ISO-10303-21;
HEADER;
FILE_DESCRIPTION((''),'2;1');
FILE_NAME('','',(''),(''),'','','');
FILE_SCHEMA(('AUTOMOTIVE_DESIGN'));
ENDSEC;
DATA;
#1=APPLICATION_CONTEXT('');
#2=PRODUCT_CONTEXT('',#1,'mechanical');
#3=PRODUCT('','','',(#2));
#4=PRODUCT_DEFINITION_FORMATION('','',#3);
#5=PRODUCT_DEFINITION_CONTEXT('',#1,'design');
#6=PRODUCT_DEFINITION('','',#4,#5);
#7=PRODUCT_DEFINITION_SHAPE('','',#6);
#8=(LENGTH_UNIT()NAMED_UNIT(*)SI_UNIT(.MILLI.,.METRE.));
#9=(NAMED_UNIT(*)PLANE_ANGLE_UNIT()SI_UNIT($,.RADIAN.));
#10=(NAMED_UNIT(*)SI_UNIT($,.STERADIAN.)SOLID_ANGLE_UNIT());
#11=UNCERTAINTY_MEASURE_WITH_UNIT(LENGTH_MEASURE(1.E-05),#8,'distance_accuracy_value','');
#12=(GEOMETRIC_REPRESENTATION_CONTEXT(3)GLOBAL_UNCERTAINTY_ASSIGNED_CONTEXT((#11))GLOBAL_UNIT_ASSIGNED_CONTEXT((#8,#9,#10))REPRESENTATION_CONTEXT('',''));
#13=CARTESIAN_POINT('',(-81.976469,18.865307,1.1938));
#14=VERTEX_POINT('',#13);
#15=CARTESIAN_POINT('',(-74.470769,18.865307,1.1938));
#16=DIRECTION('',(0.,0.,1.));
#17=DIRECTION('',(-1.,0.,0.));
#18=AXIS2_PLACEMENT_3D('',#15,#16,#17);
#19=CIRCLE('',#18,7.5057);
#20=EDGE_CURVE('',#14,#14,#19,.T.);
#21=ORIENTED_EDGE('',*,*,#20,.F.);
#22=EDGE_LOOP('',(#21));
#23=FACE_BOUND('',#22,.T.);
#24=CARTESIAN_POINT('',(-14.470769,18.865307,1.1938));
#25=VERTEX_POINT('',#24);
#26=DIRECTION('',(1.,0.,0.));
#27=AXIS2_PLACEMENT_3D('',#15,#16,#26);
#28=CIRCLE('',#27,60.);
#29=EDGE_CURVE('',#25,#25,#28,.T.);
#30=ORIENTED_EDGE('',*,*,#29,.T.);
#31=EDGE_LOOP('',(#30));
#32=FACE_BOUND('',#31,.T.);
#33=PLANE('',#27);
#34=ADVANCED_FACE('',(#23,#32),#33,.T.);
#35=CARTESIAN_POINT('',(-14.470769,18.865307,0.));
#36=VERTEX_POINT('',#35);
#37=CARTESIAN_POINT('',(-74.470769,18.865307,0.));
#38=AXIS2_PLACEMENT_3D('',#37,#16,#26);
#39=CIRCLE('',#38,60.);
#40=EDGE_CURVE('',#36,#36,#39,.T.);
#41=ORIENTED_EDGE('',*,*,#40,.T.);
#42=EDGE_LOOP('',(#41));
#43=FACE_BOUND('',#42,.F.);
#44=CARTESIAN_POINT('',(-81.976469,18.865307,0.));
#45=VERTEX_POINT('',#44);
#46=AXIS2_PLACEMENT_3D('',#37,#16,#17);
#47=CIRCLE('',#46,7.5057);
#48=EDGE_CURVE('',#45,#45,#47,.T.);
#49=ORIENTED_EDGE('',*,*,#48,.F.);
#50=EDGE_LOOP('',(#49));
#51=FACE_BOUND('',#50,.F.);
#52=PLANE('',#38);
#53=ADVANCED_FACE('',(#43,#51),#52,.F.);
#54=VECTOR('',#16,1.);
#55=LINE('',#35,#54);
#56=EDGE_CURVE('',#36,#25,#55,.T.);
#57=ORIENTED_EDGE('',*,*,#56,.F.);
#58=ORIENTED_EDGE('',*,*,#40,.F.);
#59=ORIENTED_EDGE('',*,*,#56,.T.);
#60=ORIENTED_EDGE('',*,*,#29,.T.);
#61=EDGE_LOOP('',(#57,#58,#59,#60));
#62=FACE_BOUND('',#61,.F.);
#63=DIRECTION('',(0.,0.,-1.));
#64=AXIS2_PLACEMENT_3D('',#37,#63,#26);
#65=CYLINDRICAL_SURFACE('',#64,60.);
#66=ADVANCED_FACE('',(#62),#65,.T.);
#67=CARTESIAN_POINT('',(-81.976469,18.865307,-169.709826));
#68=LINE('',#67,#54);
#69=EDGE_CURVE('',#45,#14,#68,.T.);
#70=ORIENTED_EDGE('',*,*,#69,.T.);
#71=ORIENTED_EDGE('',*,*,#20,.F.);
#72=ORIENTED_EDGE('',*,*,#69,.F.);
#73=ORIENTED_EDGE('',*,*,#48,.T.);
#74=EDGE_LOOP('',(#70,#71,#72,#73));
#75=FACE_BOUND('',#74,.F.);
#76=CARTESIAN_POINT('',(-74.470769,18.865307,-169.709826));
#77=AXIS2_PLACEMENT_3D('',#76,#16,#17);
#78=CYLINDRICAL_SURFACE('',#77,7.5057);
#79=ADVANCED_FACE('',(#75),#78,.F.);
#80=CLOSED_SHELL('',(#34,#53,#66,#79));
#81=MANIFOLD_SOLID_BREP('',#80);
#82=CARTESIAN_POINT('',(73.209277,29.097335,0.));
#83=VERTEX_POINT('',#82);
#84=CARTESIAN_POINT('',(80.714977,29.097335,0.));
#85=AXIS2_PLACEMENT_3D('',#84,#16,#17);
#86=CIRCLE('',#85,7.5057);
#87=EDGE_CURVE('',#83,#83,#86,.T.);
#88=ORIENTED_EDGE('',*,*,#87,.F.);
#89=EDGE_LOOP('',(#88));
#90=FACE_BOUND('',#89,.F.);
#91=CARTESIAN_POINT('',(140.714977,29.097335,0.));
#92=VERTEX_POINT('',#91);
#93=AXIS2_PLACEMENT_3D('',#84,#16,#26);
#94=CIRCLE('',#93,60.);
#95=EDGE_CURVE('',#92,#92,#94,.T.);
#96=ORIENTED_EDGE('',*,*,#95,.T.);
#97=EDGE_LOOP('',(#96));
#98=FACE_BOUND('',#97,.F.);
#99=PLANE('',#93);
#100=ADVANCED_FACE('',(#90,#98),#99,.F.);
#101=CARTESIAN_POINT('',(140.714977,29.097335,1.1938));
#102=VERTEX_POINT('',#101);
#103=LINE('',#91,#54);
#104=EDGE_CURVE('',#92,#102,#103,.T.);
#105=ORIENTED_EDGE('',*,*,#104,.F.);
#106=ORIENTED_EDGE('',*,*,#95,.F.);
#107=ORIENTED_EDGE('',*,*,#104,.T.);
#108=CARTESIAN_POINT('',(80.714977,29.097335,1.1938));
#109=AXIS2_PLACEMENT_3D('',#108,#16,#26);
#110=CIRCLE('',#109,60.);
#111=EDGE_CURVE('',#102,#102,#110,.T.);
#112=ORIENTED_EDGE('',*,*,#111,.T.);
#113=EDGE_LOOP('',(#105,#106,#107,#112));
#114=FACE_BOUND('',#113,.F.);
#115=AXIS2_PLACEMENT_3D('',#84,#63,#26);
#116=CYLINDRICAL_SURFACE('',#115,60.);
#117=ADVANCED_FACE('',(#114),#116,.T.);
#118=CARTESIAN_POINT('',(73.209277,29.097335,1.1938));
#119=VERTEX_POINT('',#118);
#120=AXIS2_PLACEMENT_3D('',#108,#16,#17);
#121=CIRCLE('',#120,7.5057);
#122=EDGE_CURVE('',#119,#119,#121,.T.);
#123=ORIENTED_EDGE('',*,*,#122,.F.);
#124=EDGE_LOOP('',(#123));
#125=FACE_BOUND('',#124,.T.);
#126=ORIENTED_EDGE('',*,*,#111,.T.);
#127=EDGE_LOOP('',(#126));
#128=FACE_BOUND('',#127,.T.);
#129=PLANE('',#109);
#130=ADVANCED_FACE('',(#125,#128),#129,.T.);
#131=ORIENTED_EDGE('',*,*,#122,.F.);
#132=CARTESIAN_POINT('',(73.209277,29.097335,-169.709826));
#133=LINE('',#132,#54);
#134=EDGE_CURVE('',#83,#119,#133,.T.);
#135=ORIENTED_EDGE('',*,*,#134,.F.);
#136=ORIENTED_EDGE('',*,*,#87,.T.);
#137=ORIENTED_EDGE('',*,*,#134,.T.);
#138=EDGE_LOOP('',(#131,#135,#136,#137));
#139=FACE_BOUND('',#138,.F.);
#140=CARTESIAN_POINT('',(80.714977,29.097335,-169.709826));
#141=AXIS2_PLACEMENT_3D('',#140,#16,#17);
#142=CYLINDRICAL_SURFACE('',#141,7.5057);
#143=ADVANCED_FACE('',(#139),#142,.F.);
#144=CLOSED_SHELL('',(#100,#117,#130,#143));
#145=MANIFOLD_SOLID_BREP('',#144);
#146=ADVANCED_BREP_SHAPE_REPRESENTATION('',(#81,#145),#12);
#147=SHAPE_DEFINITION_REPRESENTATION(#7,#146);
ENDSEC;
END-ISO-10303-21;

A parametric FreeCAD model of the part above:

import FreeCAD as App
import Part
import Sketcher

V = App.Vector
Q = App.Units.Quantity

doc = App.newDocument("Part")
body = doc.addObject("PartDesign::Body", "Body")

# Sketch on XY plane
sketch1 = body.newObject("Sketcher::SketchObject", "Sketch")
sketch1.AttachmentSupport = (doc.getObject("XY_Plane"), [""])
sketch1.MapMode = "FlatFace"
sketch1.addGeometry(Part.Circle(V(-74, 19, 0), V(0, 0, 1), 60), False)
sketch1.addConstraint([
    Sketcher.Constraint("Diameter", 0, Q("120 mm")),
    Sketcher.Constraint("DistanceX", 0, 3, -1, 1, Q("74.470769 mm")),
    Sketcher.Constraint("DistanceY", -1, 1, 0, 3, Q("18.865307 mm")),
])
pad1 = body.newObject("PartDesign::Pad", "Pad")
pad1.Profile = sketch1
pad1.Length = Q("0.047 in")

# Sketch on XY plane
sketch2 = body.newObject("Sketcher::SketchObject", "Sketch001")
sketch2.AttachmentSupport = (doc.getObject("XY_Plane"), [""])
sketch2.MapMode = "FlatFace"
sketch2.addGeometry([
    Part.Circle(V(-74, 19, 0), V(0, 0, 1), 8),
    Part.Circle(V(81, 29, 0), V(0, 0, 1), 8),
], False)
sketch2.addConstraint([
    Sketcher.Constraint("Equal", 0, 1),
    Sketcher.Constraint("Diameter", 0, Q("0.591 in")),
    Sketcher.Constraint("DistanceX", 0, 3, -1, 1, Q("74.470769 mm")),
    Sketcher.Constraint("DistanceY", 0, 3, 1, 3, Q("10.232028 mm")),
    Sketcher.Constraint("DistanceY", -1, 1, 0, 3, Q("18.865307 mm")),
    Sketcher.Constraint("DistanceX", -1, 1, 1, 3, Q("80.714977 mm")),
])
doc.recompute()
hole = body.newObject("PartDesign::Hole", "Hole")
hole.Profile = sketch2
hole.ThreadType = "None"
hole.Diameter = Q("0.591 in")
hole.DepthType = "ThroughAll"
hole.Reversed = True
body2 = doc.addObject("PartDesign::Body", "Body001")

# Sketch on XY plane
sketch3 = body2.newObject("Sketcher::SketchObject", "Sketch002")
sketch3.AttachmentSupport = (doc.getObject("XY_Plane001"), [""])
sketch3.MapMode = "FlatFace"
sketch3.addGeometry(Part.Circle(V(81, 29, 0), V(0, 0, 1), 60), False)
sketch3.addConstraint([
    Sketcher.Constraint("Diameter", 0, Q("120 mm")),
    Sketcher.Constraint("DistanceX", -1, 1, 0, 3, Q("80.714977 mm")),
    Sketcher.Constraint("DistanceY", -1, 1, 0, 3, Q("29.097335 mm")),
])
pad2 = body2.newObject("PartDesign::Pad", "Pad001")
pad2.Profile = sketch3
pad2.Length = Q("0.047 in")

# Sketch on XY plane
sketch4 = body2.newObject("Sketcher::SketchObject", "Sketch003")
sketch4.AttachmentSupport = (doc.getObject("XY_Plane001"), [""])
sketch4.MapMode = "FlatFace"
sketch4.addGeometry([
    Part.Circle(V(-74, 19, 0), V(0, 0, 1), 8),
    Part.Circle(V(81, 29, 0), V(0, 0, 1), 8),
], False)
sketch4.addConstraint([
    Sketcher.Constraint("Equal", 0, 1),
    Sketcher.Constraint("Diameter", 0, Q("0.591 in")),
    Sketcher.Constraint("DistanceX", 0, 3, -1, 1, Q("74.470769 mm")),
    Sketcher.Constraint("DistanceY", 0, 3, 1, 3, Q("10.232028 mm")),
    Sketcher.Constraint("DistanceY", -1, 1, 0, 3, Q("18.865307 mm")),
    Sketcher.Constraint("DistanceX", -1, 1, 1, 3, Q("80.714977 mm")),
])
doc.recompute()
hole2 = body2.newObject("PartDesign::Hole", "Hole001")
hole2.Profile = sketch4
hole2.ThreadType = "None"
hole2.Diameter = Q("0.591 in")
hole2.DepthType = "ThroughAll"
hole2.Reversed = True

doc.recompute()
